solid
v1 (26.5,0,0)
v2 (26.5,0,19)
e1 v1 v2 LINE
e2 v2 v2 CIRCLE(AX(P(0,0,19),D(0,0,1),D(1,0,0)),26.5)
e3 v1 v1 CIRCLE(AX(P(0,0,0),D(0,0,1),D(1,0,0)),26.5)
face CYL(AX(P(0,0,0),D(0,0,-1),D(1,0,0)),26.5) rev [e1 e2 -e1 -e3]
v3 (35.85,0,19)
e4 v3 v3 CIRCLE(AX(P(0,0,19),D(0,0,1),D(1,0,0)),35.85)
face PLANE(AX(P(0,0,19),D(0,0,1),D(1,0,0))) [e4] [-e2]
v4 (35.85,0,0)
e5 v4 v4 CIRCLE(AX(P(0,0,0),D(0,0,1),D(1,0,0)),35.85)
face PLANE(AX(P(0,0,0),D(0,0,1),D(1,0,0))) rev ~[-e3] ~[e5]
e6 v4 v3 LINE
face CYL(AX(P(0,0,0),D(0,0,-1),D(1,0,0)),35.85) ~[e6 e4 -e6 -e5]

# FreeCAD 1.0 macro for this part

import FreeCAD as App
import Part
import Sketcher
Q = App.Units.Quantity

doc = App.newDocument("Part")
body = doc.addObject("PartDesign::Body", "Body")

sketch1 = body.newObject("Sketcher::SketchObject", "Sketch")
sketch1.AttachmentSupport = (doc.getObject("XY_Plane"), [""])
sketch1.MapMode = "FlatFace"
sketch1.addGeometry([
    Part.Circle(App.Vector(0, 0, 0), App.Vector(0, 0, 1), 35.85),
    Part.Circle(App.Vector(0, 0, 0), App.Vector(0, 0, 1), 26.5),
], False)
sketch1.addConstraint([
    Sketcher.Constraint("Coincident", 0, 3, -1, 1),
    Sketcher.Constraint("Coincident", 1, 3, -1, 1),
    Sketcher.Constraint("Diameter", 1, Q("53 mm")),
    Sketcher.Constraint("Diameter", 0, Q("71.7 mm")),
])
pad1 = body.newObject("PartDesign::Pad", "Pad")
pad1.Profile = sketch1
pad1.Length = 19

doc.recompute()
